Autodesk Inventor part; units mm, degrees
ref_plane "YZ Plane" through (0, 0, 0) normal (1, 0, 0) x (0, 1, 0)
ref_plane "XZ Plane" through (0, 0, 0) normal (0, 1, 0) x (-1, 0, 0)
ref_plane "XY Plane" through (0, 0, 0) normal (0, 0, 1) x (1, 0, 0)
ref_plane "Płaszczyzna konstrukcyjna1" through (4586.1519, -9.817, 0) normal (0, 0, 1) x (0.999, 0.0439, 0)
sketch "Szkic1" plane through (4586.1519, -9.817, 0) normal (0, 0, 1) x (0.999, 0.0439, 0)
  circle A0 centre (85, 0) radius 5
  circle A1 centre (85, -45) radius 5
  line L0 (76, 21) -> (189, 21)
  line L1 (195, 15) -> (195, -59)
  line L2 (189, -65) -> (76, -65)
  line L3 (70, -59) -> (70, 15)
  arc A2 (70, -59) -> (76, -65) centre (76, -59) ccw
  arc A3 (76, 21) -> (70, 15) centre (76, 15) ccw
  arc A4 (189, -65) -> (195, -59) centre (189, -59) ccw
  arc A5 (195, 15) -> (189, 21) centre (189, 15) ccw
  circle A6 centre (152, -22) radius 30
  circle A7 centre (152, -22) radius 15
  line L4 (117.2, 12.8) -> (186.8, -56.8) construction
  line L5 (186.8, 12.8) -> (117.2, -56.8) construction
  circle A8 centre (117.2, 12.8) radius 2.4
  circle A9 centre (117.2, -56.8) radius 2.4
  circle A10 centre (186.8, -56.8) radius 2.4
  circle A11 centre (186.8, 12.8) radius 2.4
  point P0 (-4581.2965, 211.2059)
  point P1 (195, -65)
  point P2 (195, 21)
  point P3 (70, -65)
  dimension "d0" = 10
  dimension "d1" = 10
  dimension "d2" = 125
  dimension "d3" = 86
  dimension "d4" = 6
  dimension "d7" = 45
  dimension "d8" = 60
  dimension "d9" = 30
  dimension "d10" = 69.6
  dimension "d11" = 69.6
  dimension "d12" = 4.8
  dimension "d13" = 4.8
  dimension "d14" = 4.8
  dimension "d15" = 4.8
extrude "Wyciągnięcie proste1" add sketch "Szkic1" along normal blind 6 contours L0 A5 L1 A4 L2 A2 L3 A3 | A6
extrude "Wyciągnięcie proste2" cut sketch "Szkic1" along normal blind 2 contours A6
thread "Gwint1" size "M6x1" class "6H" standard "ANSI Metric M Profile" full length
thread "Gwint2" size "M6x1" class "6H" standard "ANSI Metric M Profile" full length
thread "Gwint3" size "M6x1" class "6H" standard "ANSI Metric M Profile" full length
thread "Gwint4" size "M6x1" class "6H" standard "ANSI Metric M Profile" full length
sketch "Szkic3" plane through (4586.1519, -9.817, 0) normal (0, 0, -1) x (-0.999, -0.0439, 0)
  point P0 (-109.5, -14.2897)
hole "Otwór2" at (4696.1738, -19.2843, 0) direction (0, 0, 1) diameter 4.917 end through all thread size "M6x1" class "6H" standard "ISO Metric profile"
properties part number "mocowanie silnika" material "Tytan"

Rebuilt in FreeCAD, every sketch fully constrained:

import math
import FreeCAD as App
import Part
import Sketcher

V = App.Vector
Q = App.Units.Quantity

doc = App.newDocument("Part")
body = doc.addObject("PartDesign::Body", "Body")

# Sketch on XY plane
sketch1 = body.newObject("Sketcher::SketchObject", "Sketch")
sketch1.AttachmentSupport = (doc.getObject("XY_Plane"), [""])
sketch1.MapMode = "FlatFace"
sketch1.addGeometry([
    Part.LineSegment(V(4774.047745, 19.460151, 0), V(4661.156692, 14.499273, 0)),  # 0
    Part.ArcOfCircle(Part.Circle(V(4661.420102, 8.505058, 0), V(0, 0, 1), 6), math.radians(92.516184), math.radians(182.516184)),  # 1
    Part.LineSegment(V(4655.425887, 8.241648, 0), V(4658.674603, -65.687005, 0)),  # 2
    Part.ArcOfCircle(Part.Circle(V(4664.668818, -65.423596, 0), V(0, 0, 1), 6), math.radians(-177.483816), math.radians(-87.483816)),  # 3
    Part.LineSegment(V(4664.932228, -71.417811, 0), V(4777.82328, -66.456933, 0)),  # 4
    Part.ArcOfCircle(Part.Circle(V(4777.559871, -60.462718, 0), V(0, 0, 1), 6), math.radians(-87.483816), math.radians(2.516184)),  # 5
    Part.LineSegment(V(4783.554086, -60.199308, 0), V(4780.305369, 13.729345, 0)),  # 6
    Part.ArcOfCircle(Part.Circle(V(4774.311154, 13.465936, 0), V(0, 0, 1), 6), math.radians(2.516184), math.radians(92.516184)),  # 7
    Part.Circle(V(4673.045519, -51.04198, 0), V(0, 0, 1), 5),  # 8
    Part.Circle(V(4705.732512, -61.416972, 0), V(0, 0, 1), 2.4),  # 9
    Part.Circle(V(4775.265408, -58.361423, 0), V(0, 0, 1), 2.4),  # 10
    Part.Circle(V(4671.069948, -6.085366, 0), V(0, 0, 1), 5),  # 11
    Part.Circle(V(4702.676963, 8.115924, 0), V(0, 0, 1), 2.4),  # 12
    Part.Circle(V(4772.209859, 11.171473, 0), V(0, 0, 1), 2.4),  # 13
    Part.Circle(V(4738.971186, -25.122749, 0), V(0, 0, 1), 15),  # 14
], False)
sketch1.addConstraint([
    Sketcher.Constraint("Tangent", 0, 2, 1, 1),
    Sketcher.Constraint("Tangent", 1, 2, 2, 1),
    Sketcher.Constraint("Tangent", 2, 2, 3, 1),
    Sketcher.Constraint("Tangent", 3, 2, 4, 1),
    Sketcher.Constraint("Tangent", 4, 2, 5, 1),
    Sketcher.Constraint("Tangent", 5, 2, 6, 1),
    Sketcher.Constraint("Tangent", 6, 2, 7, 1),
    Sketcher.Constraint("Tangent", 7, 2, 0, 1),
    Sketcher.Constraint("Equal", 1, 3),
    Sketcher.Constraint("Equal", 3, 5),
    Sketcher.Constraint("Equal", 5, 7),
    Sketcher.Constraint("Equal", 9, 10),
    Sketcher.Constraint("Equal", 8, 11),
    Sketcher.Constraint("Equal", 10, 12),
    Sketcher.Constraint("Equal", 12, 13),
    Sketcher.Constraint("Perpendicular", 0, 2),
    Sketcher.Constraint("Perpendicular", 2, 4),
    Sketcher.Constraint("Perpendicular", 4, 6),
    Sketcher.Constraint("Diameter", 8, Q("10 mm")),
    Sketcher.Constraint("Diameter", 14, Q("30 mm")),
    Sketcher.Constraint("Radius", 1, Q("6 mm")),
    Sketcher.Constraint("Diameter", 9, Q("4.8 mm")),
    Sketcher.Constraint("Distance", 0, Q("113 mm")),
    Sketcher.Constraint("Distance", 2, Q("74 mm")),
    Sketcher.Constraint("DistanceX", -1, 1, 1, 3, Q("4661.42 mm")),
    Sketcher.Constraint("DistanceX", -1, 1, 11, 3, Q("4671.07 mm")),
    Sketcher.Constraint("DistanceX", 8, 3, 10, 3, Q("102.22 mm")),
    Sketcher.Constraint("DistanceY", 12, 3, 7, 3, Q("5.35 mm")),
    Sketcher.Constraint("DistanceX", 13, 3, 5, 3, Q("5.35 mm")),
    Sketcher.Constraint("DistanceY", 5, 3, 14, 3, Q("35.34 mm")),
    Sketcher.Constraint("DistanceY", 2, 2, 9, 3, Q("4.27 mm")),
    Sketcher.Constraint("DistanceY", 4, 2, 9, 3, Q("5.04 mm")),
    Sketcher.Constraint("DistanceX", 10, 3, 6, 2, Q("5.04 mm")),
    Sketcher.Constraint("DistanceY", -1, 1, 1, 3, Q("8.505 mm")),
    Sketcher.Constraint("DistanceY", 8, 3, -1, 1, Q("51.042 mm")),
    Sketcher.Constraint("DistanceX", -1, 1, 12, 3, Q("4702.677 mm")),
    Sketcher.Constraint("DistanceX", 8, 3, 9, 3, Q("32.687 mm")),
    Sketcher.Constraint("DistanceY", 10, 3, 13, 3, Q("69.533 mm")),
    Sketcher.Constraint("DistanceY", 11, 3, 1, 2, Q("14.327 mm")),
    Sketcher.Constraint("DistanceX", 14, 3, 4, 2, Q("38.852 mm")),
    Sketcher.Constraint("DistanceY", 5, 2, 10, 3, Q("1.838 mm")),
])
pad1 = body.newObject("PartDesign::Pad", "Pad")
pad1.Profile = sketch1
pad1.Length = 6

# Sketch on XY plane
sketch2 = body.newObject("Sketcher::SketchObject", "Sketch001")
sketch2.AttachmentSupport = (doc.getObject("XY_Plane"), [""])
sketch2.MapMode = "FlatFace"
sketch2.addGeometry([
    Part.Circle(V(4738.971186, -25.122749, 0), V(0, 0, 1), 30),
    Part.Circle(V(4738.971186, -25.122749, 0), V(0, 0, 1), 15),
], False)
sketch2.addConstraint([
    Sketcher.Constraint("Coincident", 1, 3, 0, 3),
    Sketcher.Constraint("Diameter", 0, Q("60 mm")),
    Sketcher.Constraint("Diameter", 1, Q("30 mm")),
    Sketcher.Constraint("DistanceX", -1, 1, 0, 3, Q("4738.9712 mm")),
    Sketcher.Constraint("DistanceY", 0, 3, -1, 1, Q("25.1227 mm")),
])
pocket1 = body.newObject("PartDesign::Pocket", "Pocket")
pocket1.Profile = sketch2
pocket1.Length = 2
pocket1.Reversed = True

# Sketch on XY plane
sketch3 = body.newObject("Sketcher::SketchObject", "Sketch002")
sketch3.AttachmentSupport = (doc.getObject("XY_Plane"), [""])
sketch3.MapMode = "FlatFace"
sketch3.addGeometry(Part.Circle(V(4696.1738, -19.2843, 0), V(0, 0, 1), 2.4585), False)
sketch3.addConstraint([
    Sketcher.Constraint("Diameter", 0, Q("4.917 mm")),
    Sketcher.Constraint("DistanceX", -1, 1, 0, 3, Q("4696.1738 mm")),
    Sketcher.Constraint("DistanceY", 0, 3, -1, 1, Q("19.2843 mm")),
])
doc.recompute()
hole = body.newObject("PartDesign::Hole", "Hole")
hole.Profile = sketch3
hole.ThreadType = "None"
hole.Diameter = 4.917
hole.DepthType = "ThroughAll"
hole.Reversed = True

doc.recompute()
